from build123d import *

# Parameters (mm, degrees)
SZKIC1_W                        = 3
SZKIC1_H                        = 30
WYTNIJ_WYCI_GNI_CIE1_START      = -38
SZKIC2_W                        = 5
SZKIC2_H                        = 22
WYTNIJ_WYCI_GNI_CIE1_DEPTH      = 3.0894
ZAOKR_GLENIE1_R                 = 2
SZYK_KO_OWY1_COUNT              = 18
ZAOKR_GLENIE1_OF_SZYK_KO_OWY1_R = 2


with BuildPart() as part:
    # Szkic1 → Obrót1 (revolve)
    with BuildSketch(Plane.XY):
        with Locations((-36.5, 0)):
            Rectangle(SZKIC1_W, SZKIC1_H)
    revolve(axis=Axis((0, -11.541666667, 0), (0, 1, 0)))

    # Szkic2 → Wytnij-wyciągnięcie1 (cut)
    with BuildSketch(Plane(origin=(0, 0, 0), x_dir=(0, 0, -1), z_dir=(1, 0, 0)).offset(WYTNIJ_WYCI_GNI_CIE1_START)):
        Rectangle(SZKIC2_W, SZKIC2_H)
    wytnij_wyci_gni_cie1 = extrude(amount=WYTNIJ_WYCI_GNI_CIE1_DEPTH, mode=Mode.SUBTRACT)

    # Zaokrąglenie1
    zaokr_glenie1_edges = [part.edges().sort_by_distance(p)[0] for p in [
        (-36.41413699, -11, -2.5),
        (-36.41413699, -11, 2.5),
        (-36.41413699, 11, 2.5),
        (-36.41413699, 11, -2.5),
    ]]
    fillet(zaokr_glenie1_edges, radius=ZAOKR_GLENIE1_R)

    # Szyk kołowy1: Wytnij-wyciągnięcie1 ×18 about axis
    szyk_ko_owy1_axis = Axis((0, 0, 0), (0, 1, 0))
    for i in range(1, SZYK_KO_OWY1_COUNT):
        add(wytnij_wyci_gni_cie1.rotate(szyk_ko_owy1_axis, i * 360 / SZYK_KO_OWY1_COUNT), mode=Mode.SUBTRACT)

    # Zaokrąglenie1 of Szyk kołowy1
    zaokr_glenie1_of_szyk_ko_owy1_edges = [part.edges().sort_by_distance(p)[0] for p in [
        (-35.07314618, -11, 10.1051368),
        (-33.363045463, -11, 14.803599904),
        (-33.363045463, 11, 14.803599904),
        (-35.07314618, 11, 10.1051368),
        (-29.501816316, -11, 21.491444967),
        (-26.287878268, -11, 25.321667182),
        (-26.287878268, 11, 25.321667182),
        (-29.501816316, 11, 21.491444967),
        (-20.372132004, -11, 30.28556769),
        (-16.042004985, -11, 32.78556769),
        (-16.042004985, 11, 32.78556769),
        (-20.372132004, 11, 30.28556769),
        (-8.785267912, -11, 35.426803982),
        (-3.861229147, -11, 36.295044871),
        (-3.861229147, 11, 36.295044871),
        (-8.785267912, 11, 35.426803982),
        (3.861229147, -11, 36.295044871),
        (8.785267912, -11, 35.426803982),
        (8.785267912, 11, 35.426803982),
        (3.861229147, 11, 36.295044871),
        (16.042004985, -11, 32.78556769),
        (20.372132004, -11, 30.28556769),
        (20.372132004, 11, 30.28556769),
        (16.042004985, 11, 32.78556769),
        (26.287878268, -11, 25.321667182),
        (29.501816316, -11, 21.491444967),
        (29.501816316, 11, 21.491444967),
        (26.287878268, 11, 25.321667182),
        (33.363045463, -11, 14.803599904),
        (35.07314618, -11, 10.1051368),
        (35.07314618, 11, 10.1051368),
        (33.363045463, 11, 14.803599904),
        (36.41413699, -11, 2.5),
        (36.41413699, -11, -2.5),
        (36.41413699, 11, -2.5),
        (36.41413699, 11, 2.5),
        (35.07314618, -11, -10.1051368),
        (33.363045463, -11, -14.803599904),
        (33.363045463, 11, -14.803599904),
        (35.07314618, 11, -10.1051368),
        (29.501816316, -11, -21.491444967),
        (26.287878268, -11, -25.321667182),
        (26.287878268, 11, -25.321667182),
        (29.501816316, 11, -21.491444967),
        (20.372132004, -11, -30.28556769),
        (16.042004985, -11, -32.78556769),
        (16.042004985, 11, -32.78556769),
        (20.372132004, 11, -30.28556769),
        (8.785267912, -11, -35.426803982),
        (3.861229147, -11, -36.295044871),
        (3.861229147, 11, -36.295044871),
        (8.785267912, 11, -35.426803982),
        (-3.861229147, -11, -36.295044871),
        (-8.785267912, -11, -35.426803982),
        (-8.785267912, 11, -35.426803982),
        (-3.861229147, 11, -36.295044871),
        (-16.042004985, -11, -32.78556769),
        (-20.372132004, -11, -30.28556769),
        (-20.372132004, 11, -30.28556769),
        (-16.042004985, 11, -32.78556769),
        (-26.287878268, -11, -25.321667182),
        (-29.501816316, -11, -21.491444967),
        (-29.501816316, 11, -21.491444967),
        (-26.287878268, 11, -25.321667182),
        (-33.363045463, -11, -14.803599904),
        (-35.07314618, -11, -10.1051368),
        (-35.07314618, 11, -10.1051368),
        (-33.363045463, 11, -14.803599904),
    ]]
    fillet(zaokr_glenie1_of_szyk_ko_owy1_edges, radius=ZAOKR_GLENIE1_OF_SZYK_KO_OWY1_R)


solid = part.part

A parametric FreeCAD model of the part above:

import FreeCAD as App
import Part
import Sketcher
from FreeCAD import Vector
Q = App.Units.Quantity


def edges_at(feature, points):
    """Names of the edges that pass closest to the given points."""
    edges = feature.Shape.Edges
    near = lambda p: min(range(len(edges)), key=lambda i: edges[i].distToShape(Part.Vertex(*p))[0])
    return sorted({f"Edge{near(p) + 1}" for p in points})


def add_polygon(sketch, points):
    """Adds a closed chain of lines whose ends are joined by coincident constraints."""
    first, n = sketch.GeometryCount, len(points)
    for a, b in zip(points, points[1:] + points[:1]):
        sketch.addGeometry(Part.LineSegment(App.Vector(*a, 0), App.Vector(*b, 0)), False)
    for i in range(n):
        sketch.addConstraint(Sketcher.Constraint("Coincident", first + i, 2, first + (i + 1) % n, 1))

doc = App.newDocument("Part")
body = doc.addObject("PartDesign::Body", "Body")

# Sketch on XY plane
sketch1 = body.newObject("Sketcher::SketchObject", "Sketch")
sketch1.AttachmentSupport = (doc.getObject("XY_Plane"), [""])
sketch1.MapMode = "FlatFace"
add_polygon(sketch1, [(-38, 15), (-38, -15), (-35, -15), (-35, 15)])  # lines 0-3
sketch1.addConstraint([
    Sketcher.Constraint("Vertical", 0),
    Sketcher.Constraint("Horizontal", 1),
    Sketcher.Constraint("Vertical", 2),
    Sketcher.Constraint("Horizontal", 3),
    Sketcher.Constraint("DistanceX", 1, 1, 1, 2, Q("3 mm")),
    Sketcher.Constraint("DistanceY", 0, 2, 0, 1, Q("30 mm")),
    Sketcher.Constraint("DistanceX", 0, 2, -1, 1, Q("38 mm")),
    Sketcher.Constraint("DistanceY", 0, 2, -1, 1, Q("15 mm")),
])
revolution = body.newObject("PartDesign::Revolution", "Revolution")
revolution.Profile = sketch1
revolution.ReferenceAxis = (sketch1, ["V_Axis"])
revolution.Angle = 360

# Sketch on YZ plane
sketch2 = body.newObject("Sketcher::SketchObject", "Sketch001")
sketch2.AttachmentSupport = (doc.getObject("YZ_Plane"), [""])
sketch2.MapMode = "FlatFace"
sketch2.AttachmentOffset = App.Placement(Vector(0, 0, -38), App.Rotation())
add_polygon(sketch2, [(11, 2), (-11, 2), (-11, -2), (11, -2)])  # lines 0-3
sketch2.addConstraint([
    Sketcher.Constraint("Horizontal", 0),
    Sketcher.Constraint("Vertical", 1),
    Sketcher.Constraint("Horizontal", 2),
    Sketcher.Constraint("Vertical", 3),
    Sketcher.Constraint("Symmetric", 0, 2, 2, 2, -1, 1),
    Sketcher.Constraint("DistanceX", 0, 2, 0, 1, Q("22 mm")),
    Sketcher.Constraint("DistanceY", 1, 2, 1, 1, Q("5 mm")),
])
pocket1 = body.newObject("PartDesign::Pocket", "Pocket")
pocket1.Profile = sketch2
pocket1.Length = 3.0894
pocket1.Reversed = True
doc.recompute()

fillet = body.newObject("PartDesign::Fillet", "Fillet")
fillet.Base = (pocket1, edges_at(pocket1, [
    (-36.414, -11, -2.5),
    (-36.414, -11, 2.5),
    (-36.414, 11, 2.5),
    (-36.414, 11, -2.5),
]))
fillet.Radius = 2
doc.recompute()

polarpattern = body.newObject("PartDesign::PolarPattern", "PolarPattern")
polarpattern.Originals = [pocket1]
polarpattern.Axis = (doc.getObject("Y_Axis"), [""])
polarpattern.Angle = 360
polarpattern.Occurrences = 18
body.Tip = polarpattern
doc.recompute()

fillet2 = body.newObject("PartDesign::Fillet", "Fillet001")
fillet2.Base = (polarpattern, edges_at(polarpattern, [
    (-35.073, -11, 10.105),
    (-33.363, -11, 14.804),
    (-33.363, 11, 14.804),
    (-35.073, 11, 10.105),
    (-29.502, -11, 21.491),
    (-26.288, -11, 25.322),
    (-26.288, 11, 25.322),
    (-29.502, 11, 21.491),
    (-20.372, -11, 30.286),
    (-16.042, -11, 32.786),
    (-16.042, 11, 32.786),
    (-20.372, 11, 30.286),
    (-8.785, -11, 35.427),
    (-3.861, -11, 36.295),
    (-3.861, 11, 36.295),
    (-8.785, 11, 35.427),
    (3.861, -11, 36.295),
    (8.785, -11, 35.427),
    (8.785, 11, 35.427),
    (3.861, 11, 36.295),
    (16.042, -11, 32.786),
    (20.372, -11, 30.286),
    (20.372, 11, 30.286),
    (16.042, 11, 32.786),
    (26.288, -11, 25.322),
    (29.502, -11, 21.491),
    (29.502, 11, 21.491),
    (26.288, 11, 25.322),
    (33.363, -11, 14.804),
    (35.073, -11, 10.105),
    (35.073, 11, 10.105),
    (33.363, 11, 14.804),
    (36.414, -11, 2.5),
    (36.414, -11, -2.5),
    (36.414, 11, -2.5),
    (36.414, 11, 2.5),
    (35.073, -11, -10.105),
    (33.363, -11, -14.804),
    (33.363, 11, -14.804),
    (35.073, 11, -10.105),
    (29.502, -11, -21.491),
    (26.288, -11, -25.322),
    (26.288, 11, -25.322),
    (29.502, 11, -21.491),
    (20.372, -11, -30.286),
    (16.042, -11, -32.786),
    (16.042, 11, -32.786),
    (20.372, 11, -30.286),
    (8.785, -11, -35.427),
    (3.861, -11, -36.295),
    (3.861, 11, -36.295),
    (8.785, 11, -35.427),
    (-3.861, -11, -36.295),
    (-8.785, -11, -35.427),
    (-8.785, 11, -35.427),
    (-3.861, 11, -36.295),
    (-16.042, -11, -32.786),
    (-20.372, -11, -30.286),
    (-20.372, 11, -30.286),
    (-16.042, 11, -32.786),
    (-26.288, -11, -25.322),
    (-29.502, -11, -21.491),
    (-29.502, 11, -21.491),
    (-26.288, 11, -25.322),
    (-33.363, -11, -14.804),
    (-35.073, -11, -10.105),
    (-35.073, 11, -10.105),
    (-33.363, 11, -14.804),
]))
fillet2.Radius = 2

doc.recompute()
